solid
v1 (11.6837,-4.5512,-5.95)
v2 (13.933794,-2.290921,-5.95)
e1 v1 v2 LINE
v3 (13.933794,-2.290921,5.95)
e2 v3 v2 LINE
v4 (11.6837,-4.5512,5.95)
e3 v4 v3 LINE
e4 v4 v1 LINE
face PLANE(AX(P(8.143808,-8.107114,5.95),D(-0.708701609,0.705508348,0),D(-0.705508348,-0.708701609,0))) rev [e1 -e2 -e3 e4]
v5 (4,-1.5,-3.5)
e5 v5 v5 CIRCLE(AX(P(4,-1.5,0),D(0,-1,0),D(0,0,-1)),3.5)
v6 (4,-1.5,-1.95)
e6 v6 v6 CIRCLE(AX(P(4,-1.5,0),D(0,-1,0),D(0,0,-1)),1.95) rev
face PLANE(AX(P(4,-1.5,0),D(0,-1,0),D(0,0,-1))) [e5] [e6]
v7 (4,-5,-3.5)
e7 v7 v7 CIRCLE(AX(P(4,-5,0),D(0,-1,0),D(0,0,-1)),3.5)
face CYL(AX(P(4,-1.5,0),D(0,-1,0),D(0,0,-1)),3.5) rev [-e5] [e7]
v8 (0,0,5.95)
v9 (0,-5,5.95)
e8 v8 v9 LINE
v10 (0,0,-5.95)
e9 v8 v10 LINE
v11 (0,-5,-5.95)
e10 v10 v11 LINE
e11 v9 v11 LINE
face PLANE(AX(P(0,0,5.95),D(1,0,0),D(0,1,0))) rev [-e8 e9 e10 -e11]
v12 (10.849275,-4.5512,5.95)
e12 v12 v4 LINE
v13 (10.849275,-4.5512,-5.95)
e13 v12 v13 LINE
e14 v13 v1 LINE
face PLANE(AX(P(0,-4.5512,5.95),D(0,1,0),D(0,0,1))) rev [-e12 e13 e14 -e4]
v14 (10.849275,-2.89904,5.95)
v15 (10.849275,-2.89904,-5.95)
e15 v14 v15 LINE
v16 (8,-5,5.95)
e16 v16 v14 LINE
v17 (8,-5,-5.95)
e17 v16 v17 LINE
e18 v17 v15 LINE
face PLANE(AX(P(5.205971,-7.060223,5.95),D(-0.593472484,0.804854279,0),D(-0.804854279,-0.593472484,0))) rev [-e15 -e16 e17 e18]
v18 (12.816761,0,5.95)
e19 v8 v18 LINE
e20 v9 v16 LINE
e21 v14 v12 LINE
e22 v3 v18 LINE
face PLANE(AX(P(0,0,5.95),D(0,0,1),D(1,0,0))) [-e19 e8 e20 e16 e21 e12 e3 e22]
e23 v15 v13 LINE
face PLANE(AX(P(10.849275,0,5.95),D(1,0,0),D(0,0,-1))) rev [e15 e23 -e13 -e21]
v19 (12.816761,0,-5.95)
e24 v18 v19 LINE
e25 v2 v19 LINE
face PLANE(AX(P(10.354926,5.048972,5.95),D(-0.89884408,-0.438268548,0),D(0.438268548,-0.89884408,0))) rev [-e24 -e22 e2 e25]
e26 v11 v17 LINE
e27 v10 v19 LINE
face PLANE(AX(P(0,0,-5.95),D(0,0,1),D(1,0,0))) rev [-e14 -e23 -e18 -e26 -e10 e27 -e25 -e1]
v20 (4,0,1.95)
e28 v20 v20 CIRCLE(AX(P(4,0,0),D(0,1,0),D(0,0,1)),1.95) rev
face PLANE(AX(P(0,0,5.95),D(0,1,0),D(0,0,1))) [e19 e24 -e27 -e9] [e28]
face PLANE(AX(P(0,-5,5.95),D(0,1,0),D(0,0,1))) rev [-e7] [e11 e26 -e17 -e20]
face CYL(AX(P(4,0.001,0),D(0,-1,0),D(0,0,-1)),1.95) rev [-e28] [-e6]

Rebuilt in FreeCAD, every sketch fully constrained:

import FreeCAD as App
import Part
import Sketcher

doc = App.newDocument("Part")
params = doc.addObject("Spreadsheet::Sheet", "Params")
for row, (alias, value) in enumerate([
    ("sketch1_width", "8 mm"),
    ("sketch1_height", "5 mm"),
    ("pad1_length", "11.9 mm"),
    ("sketch2_diameter", "3.9 mm"),
    ("sketch3_diameter", "7 mm"),
    ("pocket2_length", "3.5 mm"),
], start=1):
    params.set(f"A{row}", alias)
    params.set(f"B{row}", "=" + value)
    params.setAlias(f"B{row}", alias)

body = doc.addObject("PartDesign::Body", "Body")

# Sketch on XY plane
sketch1 = body.newObject("Sketcher::SketchObject", "Sketch")
sketch1.AttachmentSupport = (doc.getObject("XY_Plane"), [""])
sketch1.MapMode = "FlatFace"
sketch1.addGeometry(Part.LineSegment(App.Vector(12.816761, 0, 0), App.Vector(0, 0, 0)), False)
sketch1.addGeometry(Part.LineSegment(App.Vector(0, 0, 0), App.Vector(0, -5, 0)), False)
sketch1.addGeometry(Part.LineSegment(App.Vector(0, -5, 0), App.Vector(8, -5, 0)), False)
sketch1.addGeometry(Part.LineSegment(App.Vector(8, -5, 0), App.Vector(10.849275, -2.89904, 0)), False)
sketch1.addGeometry(Part.LineSegment(App.Vector(10.849275, -2.89904, 0), App.Vector(10.849275, -4.5512, 0)), False)
sketch1.addGeometry(Part.LineSegment(App.Vector(10.849275, -4.5512, 0), App.Vector(11.6837, -4.5512, 0)), False)
sketch1.addGeometry(Part.LineSegment(App.Vector(11.6837, -4.5512, 0), App.Vector(13.933794, -2.290921, 0)), False)
sketch1.addGeometry(Part.LineSegment(App.Vector(13.933794, -2.290921, 0), App.Vector(12.816761, 0, 0)), False)
sketch1.addConstraint(Sketcher.Constraint("Coincident", 0, 2, 1, 1))
sketch1.addConstraint(Sketcher.Constraint("Coincident", 1, 2, 2, 1))
sketch1.addConstraint(Sketcher.Constraint("Coincident", 2, 2, 3, 1))
sketch1.addConstraint(Sketcher.Constraint("Coincident", 3, 2, 4, 1))
sketch1.addConstraint(Sketcher.Constraint("Coincident", 4, 2, 5, 1))
sketch1.addConstraint(Sketcher.Constraint("Coincident", 5, 2, 6, 1))
sketch1.addConstraint(Sketcher.Constraint("Coincident", 6, 2, 7, 1))
sketch1.addConstraint(Sketcher.Constraint("Coincident", 7, 2, 0, 1))
sketch1.addConstraint(Sketcher.Constraint("Horizontal", 0))
sketch1.addConstraint(Sketcher.Constraint("Vertical", 1))
sketch1.addConstraint(Sketcher.Constraint("Horizontal", 2))
sketch1.addConstraint(Sketcher.Constraint("Vertical", 4))
sketch1.addConstraint(Sketcher.Constraint("Horizontal", 5))
sketch1.addConstraint(Sketcher.Constraint("Coincident", 0, 2, -1, 1))
sketch1.addConstraint(Sketcher.Constraint("DistanceX", 2, 1, 2, 2, 8.0))
sketch1.addConstraint(Sketcher.Constraint("DistanceY", 1, 2, 1, 1, 5.0))
sketch1.addConstraint(Sketcher.Constraint("DistanceX", 0, 2, 0, 1, 12.816761))
sketch1.addConstraint(Sketcher.Constraint("DistanceY", 4, 2, 4, 1, 1.652159))
sketch1.addConstraint(Sketcher.Constraint("DistanceY", 4, 2, -1, 1, 4.5512))
sketch1.addConstraint(Sketcher.Constraint("DistanceX", -1, 1, 5, 2, 11.6837))
sketch1.addConstraint(Sketcher.Constraint("Distance", 7, 2.548742))
sketch1.addConstraint(Sketcher.Constraint("DistanceX", 5, 1, 5, 2, 0.834425))
sketch1.addConstraint(Sketcher.Constraint("DistanceY", 6, 2, -1, 1, 2.290921))
sketch1.setExpression("Constraints[14]", "Params.sketch1_width")
sketch1.setExpression("Constraints[15]", "Params.sketch1_height")
pad1 = body.newObject("PartDesign::Pad", "Pad")
pad1.Profile = sketch1
pad1.setExpression("Length", "Params.pad1_length")
pad1.Midplane = True

# Sketch on XZ plane
sketch2 = body.newObject("Sketcher::SketchObject", "Sketch001")
sketch2.AttachmentSupport = (doc.getObject("XZ_Plane"), [""])
sketch2.MapMode = "FlatFace"
sketch2.AttachmentOffset = App.Placement(App.Vector(0, 0, 5), App.Rotation())
sketch2.addGeometry(Part.Circle(App.Vector(4, 0, 0), App.Vector(0, 0, 1), 1.95), False)
sketch2.addConstraint(Sketcher.Constraint("PointOnObject", 0, 3, -1))
sketch2.addConstraint(Sketcher.Constraint("Diameter", 0, 3.9))
sketch2.addConstraint(Sketcher.Constraint("DistanceX", -1, 1, 0, 3, 4.0))
sketch2.setExpression("Constraints[1]", "Params.sketch2_diameter")
pocket1 = body.newObject("PartDesign::Pocket", "Pocket")
pocket1.Profile = sketch2
pocket1.Type = "UpToFirst"

# Sketch on XZ plane
sketch3 = body.newObject("Sketcher::SketchObject", "Sketch002")
sketch3.AttachmentSupport = (doc.getObject("XZ_Plane"), [""])
sketch3.MapMode = "FlatFace"
sketch3.AttachmentOffset = App.Placement(App.Vector(0, 0, 5), App.Rotation())
sketch3.addGeometry(Part.Circle(App.Vector(4, 0, 0), App.Vector(0, 0, 1), 3.5), False)
sketch3.addConstraint(Sketcher.Constraint("PointOnObject", 0, 3, -1))
sketch3.addConstraint(Sketcher.Constraint("Diameter", 0, 7.0))
sketch3.addConstraint(Sketcher.Constraint("DistanceX", -1, 1, 0, 3, 4.0))
sketch3.setExpression("Constraints[1]", "Params.sketch3_diameter")
pocket2 = body.newObject("PartDesign::Pocket", "Pocket001")
pocket2.Profile = sketch3
pocket2.setExpression("Length", "Params.pocket2_length")

doc.recompute()
